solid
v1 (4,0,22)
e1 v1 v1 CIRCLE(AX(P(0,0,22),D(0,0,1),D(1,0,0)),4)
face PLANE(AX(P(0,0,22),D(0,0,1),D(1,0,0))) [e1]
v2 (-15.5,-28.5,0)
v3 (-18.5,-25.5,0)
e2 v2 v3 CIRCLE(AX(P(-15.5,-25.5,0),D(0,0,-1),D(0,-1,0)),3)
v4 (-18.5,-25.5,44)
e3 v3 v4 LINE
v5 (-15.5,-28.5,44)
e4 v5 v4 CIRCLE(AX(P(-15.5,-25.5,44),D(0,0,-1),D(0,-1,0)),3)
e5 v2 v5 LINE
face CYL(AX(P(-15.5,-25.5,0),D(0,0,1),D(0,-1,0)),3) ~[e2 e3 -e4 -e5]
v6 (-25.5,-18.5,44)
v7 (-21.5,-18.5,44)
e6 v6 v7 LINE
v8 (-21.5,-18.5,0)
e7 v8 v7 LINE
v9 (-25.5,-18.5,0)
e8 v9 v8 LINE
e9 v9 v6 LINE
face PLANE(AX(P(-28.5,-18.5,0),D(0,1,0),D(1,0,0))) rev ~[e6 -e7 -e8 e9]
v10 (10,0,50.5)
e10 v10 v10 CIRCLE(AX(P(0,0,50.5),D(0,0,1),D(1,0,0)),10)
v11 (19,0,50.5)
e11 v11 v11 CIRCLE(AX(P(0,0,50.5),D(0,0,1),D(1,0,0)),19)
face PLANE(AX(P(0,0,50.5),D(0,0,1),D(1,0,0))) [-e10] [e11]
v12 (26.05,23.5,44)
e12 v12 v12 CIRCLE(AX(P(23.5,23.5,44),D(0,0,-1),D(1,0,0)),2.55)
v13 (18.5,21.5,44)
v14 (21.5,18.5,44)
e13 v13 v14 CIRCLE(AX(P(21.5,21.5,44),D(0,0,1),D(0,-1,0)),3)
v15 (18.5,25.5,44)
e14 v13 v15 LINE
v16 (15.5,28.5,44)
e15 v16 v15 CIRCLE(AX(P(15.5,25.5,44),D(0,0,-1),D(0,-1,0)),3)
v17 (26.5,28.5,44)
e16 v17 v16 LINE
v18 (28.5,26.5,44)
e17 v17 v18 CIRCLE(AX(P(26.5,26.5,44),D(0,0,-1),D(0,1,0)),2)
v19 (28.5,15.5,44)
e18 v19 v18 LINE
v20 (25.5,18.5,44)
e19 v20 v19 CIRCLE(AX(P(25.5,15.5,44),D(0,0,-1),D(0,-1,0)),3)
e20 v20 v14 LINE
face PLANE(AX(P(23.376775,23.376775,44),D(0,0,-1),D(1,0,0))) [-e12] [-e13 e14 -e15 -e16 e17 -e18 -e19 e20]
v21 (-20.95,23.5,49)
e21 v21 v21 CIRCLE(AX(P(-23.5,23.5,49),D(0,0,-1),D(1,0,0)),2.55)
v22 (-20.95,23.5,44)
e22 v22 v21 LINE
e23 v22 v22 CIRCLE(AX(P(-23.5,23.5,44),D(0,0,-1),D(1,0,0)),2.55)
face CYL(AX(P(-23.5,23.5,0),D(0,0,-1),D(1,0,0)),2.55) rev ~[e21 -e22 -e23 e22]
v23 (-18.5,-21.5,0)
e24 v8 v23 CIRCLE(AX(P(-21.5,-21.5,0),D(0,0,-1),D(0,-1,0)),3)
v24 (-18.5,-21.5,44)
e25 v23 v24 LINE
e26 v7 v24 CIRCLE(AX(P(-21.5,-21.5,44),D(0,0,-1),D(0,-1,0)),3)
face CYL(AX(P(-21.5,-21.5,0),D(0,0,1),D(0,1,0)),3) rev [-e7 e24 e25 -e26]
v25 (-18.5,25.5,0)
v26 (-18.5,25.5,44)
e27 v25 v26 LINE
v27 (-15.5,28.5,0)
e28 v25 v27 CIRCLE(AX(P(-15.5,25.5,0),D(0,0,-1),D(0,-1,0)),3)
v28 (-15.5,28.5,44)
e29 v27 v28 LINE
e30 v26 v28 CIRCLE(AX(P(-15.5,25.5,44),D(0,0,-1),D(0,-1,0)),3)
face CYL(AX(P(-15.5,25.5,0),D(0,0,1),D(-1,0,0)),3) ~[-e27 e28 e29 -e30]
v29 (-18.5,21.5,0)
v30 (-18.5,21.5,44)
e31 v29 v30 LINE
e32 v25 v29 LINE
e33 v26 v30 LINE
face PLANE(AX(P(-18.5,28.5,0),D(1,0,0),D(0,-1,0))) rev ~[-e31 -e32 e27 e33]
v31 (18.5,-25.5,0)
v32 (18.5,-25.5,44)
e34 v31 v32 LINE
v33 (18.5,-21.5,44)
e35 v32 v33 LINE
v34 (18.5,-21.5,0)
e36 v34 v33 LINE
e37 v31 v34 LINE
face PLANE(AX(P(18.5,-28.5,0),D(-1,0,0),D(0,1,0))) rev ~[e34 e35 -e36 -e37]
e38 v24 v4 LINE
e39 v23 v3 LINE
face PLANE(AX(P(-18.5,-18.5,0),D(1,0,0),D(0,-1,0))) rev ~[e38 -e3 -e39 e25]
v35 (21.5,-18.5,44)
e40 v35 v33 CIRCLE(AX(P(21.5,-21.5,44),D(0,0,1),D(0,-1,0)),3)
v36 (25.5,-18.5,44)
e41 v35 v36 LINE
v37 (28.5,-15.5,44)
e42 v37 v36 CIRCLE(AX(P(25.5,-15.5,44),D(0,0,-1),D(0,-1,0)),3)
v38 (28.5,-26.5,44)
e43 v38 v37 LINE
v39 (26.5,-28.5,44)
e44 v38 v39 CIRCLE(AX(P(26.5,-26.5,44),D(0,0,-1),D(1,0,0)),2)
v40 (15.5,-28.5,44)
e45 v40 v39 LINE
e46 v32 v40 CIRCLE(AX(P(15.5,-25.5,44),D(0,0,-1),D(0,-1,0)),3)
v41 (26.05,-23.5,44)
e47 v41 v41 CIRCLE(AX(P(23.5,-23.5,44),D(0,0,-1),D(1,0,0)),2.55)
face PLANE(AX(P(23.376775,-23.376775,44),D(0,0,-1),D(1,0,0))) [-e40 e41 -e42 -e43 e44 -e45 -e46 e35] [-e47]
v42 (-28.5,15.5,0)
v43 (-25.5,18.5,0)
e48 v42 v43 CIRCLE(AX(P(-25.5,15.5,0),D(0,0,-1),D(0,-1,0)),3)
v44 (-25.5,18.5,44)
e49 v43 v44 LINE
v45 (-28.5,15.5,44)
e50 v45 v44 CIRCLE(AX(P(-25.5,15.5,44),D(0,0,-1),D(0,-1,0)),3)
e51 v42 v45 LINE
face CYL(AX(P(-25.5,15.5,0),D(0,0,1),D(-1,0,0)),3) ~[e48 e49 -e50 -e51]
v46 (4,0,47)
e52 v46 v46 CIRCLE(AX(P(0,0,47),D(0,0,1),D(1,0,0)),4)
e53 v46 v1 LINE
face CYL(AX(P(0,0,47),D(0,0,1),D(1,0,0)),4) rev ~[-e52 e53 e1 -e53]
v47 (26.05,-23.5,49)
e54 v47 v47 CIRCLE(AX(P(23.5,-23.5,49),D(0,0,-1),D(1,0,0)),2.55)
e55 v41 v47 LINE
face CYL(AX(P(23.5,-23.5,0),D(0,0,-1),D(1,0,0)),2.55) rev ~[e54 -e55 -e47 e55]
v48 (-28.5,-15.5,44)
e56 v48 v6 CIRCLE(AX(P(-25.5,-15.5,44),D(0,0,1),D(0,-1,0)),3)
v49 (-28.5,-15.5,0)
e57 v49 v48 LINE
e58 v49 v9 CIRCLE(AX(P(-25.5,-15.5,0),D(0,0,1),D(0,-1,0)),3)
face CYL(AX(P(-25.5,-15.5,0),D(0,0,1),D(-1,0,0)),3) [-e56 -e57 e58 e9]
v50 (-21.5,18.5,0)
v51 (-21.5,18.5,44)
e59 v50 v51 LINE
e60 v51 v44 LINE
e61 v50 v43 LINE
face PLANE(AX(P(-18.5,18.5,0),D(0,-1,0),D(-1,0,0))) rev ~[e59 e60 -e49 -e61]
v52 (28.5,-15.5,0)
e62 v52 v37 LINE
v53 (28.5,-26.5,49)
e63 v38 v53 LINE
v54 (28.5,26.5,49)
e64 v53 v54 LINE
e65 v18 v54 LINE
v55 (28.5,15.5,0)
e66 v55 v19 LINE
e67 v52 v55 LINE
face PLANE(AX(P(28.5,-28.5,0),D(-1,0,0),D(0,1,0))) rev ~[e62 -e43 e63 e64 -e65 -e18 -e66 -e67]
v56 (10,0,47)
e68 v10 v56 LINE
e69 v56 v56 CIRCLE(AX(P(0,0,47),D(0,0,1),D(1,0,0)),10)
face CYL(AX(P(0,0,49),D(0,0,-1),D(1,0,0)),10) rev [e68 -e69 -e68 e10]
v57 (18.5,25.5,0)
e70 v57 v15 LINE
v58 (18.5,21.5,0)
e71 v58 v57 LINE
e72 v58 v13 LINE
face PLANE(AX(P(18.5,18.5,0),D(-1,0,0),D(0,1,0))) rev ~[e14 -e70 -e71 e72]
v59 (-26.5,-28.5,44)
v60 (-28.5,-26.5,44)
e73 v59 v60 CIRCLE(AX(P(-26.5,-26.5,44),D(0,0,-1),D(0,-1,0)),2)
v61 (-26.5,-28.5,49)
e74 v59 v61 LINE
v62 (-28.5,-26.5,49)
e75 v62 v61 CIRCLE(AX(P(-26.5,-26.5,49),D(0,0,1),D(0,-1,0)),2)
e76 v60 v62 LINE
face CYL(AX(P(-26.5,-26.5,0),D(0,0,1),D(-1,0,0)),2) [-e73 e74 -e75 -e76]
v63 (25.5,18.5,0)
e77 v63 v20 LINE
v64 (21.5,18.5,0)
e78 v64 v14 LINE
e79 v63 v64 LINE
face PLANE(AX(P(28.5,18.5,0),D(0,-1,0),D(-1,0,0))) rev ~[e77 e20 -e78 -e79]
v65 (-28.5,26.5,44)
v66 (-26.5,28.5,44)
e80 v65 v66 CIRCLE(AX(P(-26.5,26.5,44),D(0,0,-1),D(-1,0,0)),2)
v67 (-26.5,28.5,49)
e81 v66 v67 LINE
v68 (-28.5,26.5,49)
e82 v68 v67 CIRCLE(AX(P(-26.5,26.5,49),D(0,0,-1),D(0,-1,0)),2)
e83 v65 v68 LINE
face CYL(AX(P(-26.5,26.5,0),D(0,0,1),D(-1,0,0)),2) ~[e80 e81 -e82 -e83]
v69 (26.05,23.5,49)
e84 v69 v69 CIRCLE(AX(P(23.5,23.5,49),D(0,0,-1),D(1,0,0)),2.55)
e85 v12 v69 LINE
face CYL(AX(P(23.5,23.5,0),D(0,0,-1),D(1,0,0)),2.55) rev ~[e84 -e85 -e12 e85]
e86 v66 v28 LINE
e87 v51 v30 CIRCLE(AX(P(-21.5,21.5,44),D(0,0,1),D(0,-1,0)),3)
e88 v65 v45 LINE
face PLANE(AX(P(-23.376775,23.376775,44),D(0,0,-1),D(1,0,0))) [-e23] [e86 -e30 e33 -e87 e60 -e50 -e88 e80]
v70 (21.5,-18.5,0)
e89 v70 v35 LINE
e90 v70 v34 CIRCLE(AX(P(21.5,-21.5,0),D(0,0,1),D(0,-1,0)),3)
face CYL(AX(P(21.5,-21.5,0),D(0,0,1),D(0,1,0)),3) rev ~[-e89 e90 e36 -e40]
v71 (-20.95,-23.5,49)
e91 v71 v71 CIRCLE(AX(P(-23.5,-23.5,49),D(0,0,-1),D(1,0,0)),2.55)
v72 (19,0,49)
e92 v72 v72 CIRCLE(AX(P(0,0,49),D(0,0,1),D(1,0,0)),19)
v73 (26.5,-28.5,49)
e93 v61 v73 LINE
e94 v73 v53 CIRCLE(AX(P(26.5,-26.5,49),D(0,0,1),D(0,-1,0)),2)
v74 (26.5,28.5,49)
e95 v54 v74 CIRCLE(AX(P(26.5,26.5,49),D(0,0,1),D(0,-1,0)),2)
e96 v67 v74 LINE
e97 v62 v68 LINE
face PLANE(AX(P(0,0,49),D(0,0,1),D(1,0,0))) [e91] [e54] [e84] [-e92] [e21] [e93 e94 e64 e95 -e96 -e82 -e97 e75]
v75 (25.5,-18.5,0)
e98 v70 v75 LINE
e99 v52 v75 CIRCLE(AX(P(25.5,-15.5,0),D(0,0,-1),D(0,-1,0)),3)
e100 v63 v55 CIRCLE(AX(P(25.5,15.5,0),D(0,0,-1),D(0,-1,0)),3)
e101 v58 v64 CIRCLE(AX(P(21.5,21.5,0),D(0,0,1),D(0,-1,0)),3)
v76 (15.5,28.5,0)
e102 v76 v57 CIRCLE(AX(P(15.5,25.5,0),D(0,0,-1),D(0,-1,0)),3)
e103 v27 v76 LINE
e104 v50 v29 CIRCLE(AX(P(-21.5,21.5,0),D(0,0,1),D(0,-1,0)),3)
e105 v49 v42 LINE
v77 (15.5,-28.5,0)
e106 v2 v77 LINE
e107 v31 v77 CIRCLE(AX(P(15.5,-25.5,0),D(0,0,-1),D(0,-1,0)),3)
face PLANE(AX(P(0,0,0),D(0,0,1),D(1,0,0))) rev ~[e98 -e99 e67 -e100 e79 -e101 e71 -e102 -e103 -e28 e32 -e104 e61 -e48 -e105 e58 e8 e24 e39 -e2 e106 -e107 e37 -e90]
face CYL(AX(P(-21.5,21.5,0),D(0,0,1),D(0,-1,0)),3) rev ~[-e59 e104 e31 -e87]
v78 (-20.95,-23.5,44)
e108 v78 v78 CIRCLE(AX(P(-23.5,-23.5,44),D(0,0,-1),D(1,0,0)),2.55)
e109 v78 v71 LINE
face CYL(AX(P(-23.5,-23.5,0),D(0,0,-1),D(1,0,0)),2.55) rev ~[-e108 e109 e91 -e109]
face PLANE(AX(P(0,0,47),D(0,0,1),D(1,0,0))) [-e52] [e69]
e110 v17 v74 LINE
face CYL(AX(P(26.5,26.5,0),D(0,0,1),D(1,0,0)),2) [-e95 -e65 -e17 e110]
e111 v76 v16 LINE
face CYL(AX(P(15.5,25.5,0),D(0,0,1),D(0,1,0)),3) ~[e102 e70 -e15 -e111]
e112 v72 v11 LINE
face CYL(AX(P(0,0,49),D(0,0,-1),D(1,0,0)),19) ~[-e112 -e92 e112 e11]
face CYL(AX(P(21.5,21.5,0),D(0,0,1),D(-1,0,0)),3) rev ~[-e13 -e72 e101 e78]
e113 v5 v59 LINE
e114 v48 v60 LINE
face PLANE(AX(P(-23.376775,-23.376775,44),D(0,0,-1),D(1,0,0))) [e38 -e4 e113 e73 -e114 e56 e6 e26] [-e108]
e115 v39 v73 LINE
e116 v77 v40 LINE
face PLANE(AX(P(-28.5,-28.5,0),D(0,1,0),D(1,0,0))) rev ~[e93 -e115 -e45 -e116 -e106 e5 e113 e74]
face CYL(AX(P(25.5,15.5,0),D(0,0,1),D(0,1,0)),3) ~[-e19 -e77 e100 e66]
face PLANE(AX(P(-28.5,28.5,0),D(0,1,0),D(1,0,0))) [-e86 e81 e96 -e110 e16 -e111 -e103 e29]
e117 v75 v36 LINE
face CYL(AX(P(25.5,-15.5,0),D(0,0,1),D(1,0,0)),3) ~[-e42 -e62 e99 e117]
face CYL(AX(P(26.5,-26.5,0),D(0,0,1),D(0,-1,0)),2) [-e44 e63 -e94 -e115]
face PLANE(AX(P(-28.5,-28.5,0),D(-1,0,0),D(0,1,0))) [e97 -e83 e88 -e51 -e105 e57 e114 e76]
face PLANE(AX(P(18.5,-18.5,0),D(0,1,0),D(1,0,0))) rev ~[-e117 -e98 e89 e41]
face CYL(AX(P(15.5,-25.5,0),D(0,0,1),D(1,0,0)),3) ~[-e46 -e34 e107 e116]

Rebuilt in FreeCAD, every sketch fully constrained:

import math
import FreeCAD as App
import Part
import Sketcher

V = App.Vector
Q = App.Units.Quantity


def edges_at(feature, points):
    """Names of the edges that pass closest to the given points."""
    edges = feature.Shape.Edges
    near = lambda p: min(range(len(edges)), key=lambda i: edges[i].distToShape(Part.Vertex(*p))[0])
    return sorted({f"Edge{near(p) + 1}" for p in points})

doc = App.newDocument("Part")
body = doc.addObject("PartDesign::Body", "Body")

sketch1 = body.newObject("Sketcher::SketchObject", "Sketch")
sketch1.AttachmentSupport = (doc.getObject("XY_Plane"), [""])
sketch1.MapMode = "FlatFace"
sketch1.addGeometry(Part.LineSegment(V(-28, 28, 0), V(-28, -28, 0)), False)
sketch1.addGeometry(Part.LineSegment(V(-28, -28, 0), V(28, -28, 0)), False)
sketch1.addGeometry(Part.LineSegment(V(28, -28, 0), V(28, 28, 0)), False)
sketch1.addGeometry(Part.LineSegment(V(28, 28, 0), V(-28, 28, 0)), False)
sketch1.addConstraint(Sketcher.Constraint("Coincident", 0, 2, 1, 1))
sketch1.addConstraint(Sketcher.Constraint("Coincident", 1, 2, 2, 1))
sketch1.addConstraint(Sketcher.Constraint("Coincident", 2, 2, 3, 1))
sketch1.addConstraint(Sketcher.Constraint("Coincident", 3, 2, 0, 1))
sketch1.addConstraint(Sketcher.Constraint("Vertical", 0))
sketch1.addConstraint(Sketcher.Constraint("Horizontal", 1))
sketch1.addConstraint(Sketcher.Constraint("Vertical", 2))
sketch1.addConstraint(Sketcher.Constraint("Horizontal", 3))
sketch1.addConstraint(Sketcher.Constraint("Symmetric", 0, 2, 2, 2, -1, 1))
sketch1.addConstraint(Sketcher.Constraint("Equal", 3, 0))
sketch1.addConstraint(Sketcher.Constraint("DistanceX", 1, 1, 1, 2, Q("57 mm")))
pad1 = body.newObject("PartDesign::Pad", "Pad")
pad1.Profile = sketch1
pad1.Length = 49
doc.recompute()

fillet = body.newObject("PartDesign::Fillet", "Fillet")
fillet.Base = (pad1, edges_at(pad1, [
    (-28.5, -28.5, 24.5),
    (28.5, -28.5, 24.5),
    (28.5, 28.5, 24.5),
    (-28.5, 28.5, 24.5),
]))
fillet.Radius = 2

sketch2 = body.newObject("Sketcher::SketchObject", "Sketch001")
sketch2.AttachmentSupport = (doc.getObject("XY_Plane"), [""])
sketch2.MapMode = "FlatFace"
sketch2.addGeometry(Part.Circle(V(-23.5, 23.5, 0), V(0, 0, 1), 2.5), False)
sketch2.addGeometry(Part.Circle(V(-23.5, -23.5, 0), V(0, 0, 1), 2.5), False)
sketch2.addGeometry(Part.Circle(V(23.5, -23.5, 0), V(0, 0, 1), 2.5), False)
sketch2.addGeometry(Part.Circle(V(23.5, 23.5, 0), V(0, 0, 1), 2.5), False)
sketch2.addConstraint(Sketcher.Constraint("Equal", 0, 1))
sketch2.addConstraint(Sketcher.Constraint("Equal", 1, 2))
sketch2.addConstraint(Sketcher.Constraint("Equal", 2, 3))
sketch2.addConstraint(Sketcher.Constraint("Symmetric", 0, 3, 2, 3, -1, 1))
sketch2.addConstraint(Sketcher.Constraint("Symmetric", 1, 3, 3, 3, -1, 1))
sketch2.addConstraint(Sketcher.Constraint("Symmetric", 1, 3, 2, 3, -2))
sketch2.addConstraint(Sketcher.Constraint("Diameter", 0, Q("5.1 mm")))
sketch2.addConstraint(Sketcher.Constraint("DistanceY", 1, 3, 0, 3, Q("47 mm")))
sketch2.addConstraint(Sketcher.Constraint("DistanceX", 1, 3, 2, 3, Q("47 mm")))
pocket1 = body.newObject("PartDesign::Pocket", "Pocket")
pocket1.Profile = sketch2
pocket1.Type = "ThroughAll"
pocket1.Reversed = True

sketch3 = body.newObject("Sketcher::SketchObject", "Sketch002")
sketch3.AttachmentSupport = (doc.getObject("XY_Plane"), [""])
sketch3.MapMode = "FlatFace"
sketch3.addGeometry(Part.LineSegment(V(-26.5, 28.5, 0), V(-18.5, 28.5, 0)), False)
sketch3.addGeometry(Part.LineSegment(V(-18.5, 28.5, 0), V(-18.5, 18.5, 0)), False)
sketch3.addGeometry(Part.LineSegment(V(-18.5, 18.5, 0), V(-28.5, 18.5, 0)), False)
sketch3.addGeometry(Part.LineSegment(V(-28.5, 18.5, 0), V(-28.5, 26.5, 0)), False)
sketch3.addGeometry(Part.ArcOfCircle(Part.Circle(V(-26.5, 26.5, 0), V(0, 0, 1), 2), math.radians(90), math.radians(180)), False)
sketch3.addGeometry(Part.Circle(V(-23.5, 23.5, 0), V(0, 0, 1), 2.5), False)
sketch3.addGeometry(Part.LineSegment(V(28.5, 26.5, 0), V(28.5, 18.5, 0)), False)
sketch3.addGeometry(Part.LineSegment(V(28.5, 18.5, 0), V(18.5, 18.5, 0)), False)
sketch3.addGeometry(Part.LineSegment(V(18.5, 18.5, 0), V(18.5, 28.5, 0)), False)
sketch3.addGeometry(Part.LineSegment(V(18.5, 28.5, 0), V(26.5, 28.5, 0)), False)
sketch3.addGeometry(Part.ArcOfCircle(Part.Circle(V(26.5, 26.5, 0), V(0, 0, 1), 2), math.radians(0), math.radians(90)), False)
sketch3.addGeometry(Part.Circle(V(23.5, 23.5, 0), V(0, 0, 1), 2.5), False)
sketch3.addGeometry(Part.LineSegment(V(18.5, -18.5, 0), V(28.5, -18.5, 0)), False)
sketch3.addGeometry(Part.LineSegment(V(28.5, -18.5, 0), V(28.5, -26.5, 0)), False)
sketch3.addGeometry(Part.ArcOfCircle(Part.Circle(V(26.5, -26.5, 0), V(0, 0, 1), 2), math.radians(-90), math.radians(0)), False)
sketch3.addGeometry(Part.LineSegment(V(26.5, -28.5, 0), V(18.5, -28.5, 0)), False)
sketch3.addGeometry(Part.LineSegment(V(18.5, -28.5, 0), V(18.5, -18.5, 0)), False)
sketch3.addGeometry(Part.Circle(V(23.5, -23.5, 0), V(0, 0, 1), 2.5), False)
sketch3.addGeometry(Part.LineSegment(V(-18.5, -18.5, 0), V(-18.5, -28.5, 0)), False)
sketch3.addGeometry(Part.LineSegment(V(-18.5, -28.5, 0), V(-26.5, -28.5, 0)), False)
sketch3.addGeometry(Part.ArcOfCircle(Part.Circle(V(-26.5, -26.5, 0), V(0, 0, 1), 2), math.radians(180), math.radians(270)), False)
sketch3.addGeometry(Part.LineSegment(V(-28.5, -26.5, 0), V(-28.5, -18.5, 0)), False)
sketch3.addGeometry(Part.LineSegment(V(-28.5, -18.5, 0), V(-18.5, -18.5, 0)), False)
sketch3.addGeometry(Part.Circle(V(-23.5, -23.5, 0), V(0, 0, 1), 2.5), False)
sketch3.addConstraint(Sketcher.Constraint("Coincident", 0, 2, 1, 1))
sketch3.addConstraint(Sketcher.Constraint("Coincident", 1, 2, 2, 1))
sketch3.addConstraint(Sketcher.Constraint("Coincident", 2, 2, 3, 1))
sketch3.addConstraint(Sketcher.Constraint("Tangent", 3, 2, 4, 2))
sketch3.addConstraint(Sketcher.Constraint("Tangent", 4, 1, 0, 1))
sketch3.addConstraint(Sketcher.Constraint("Coincident", 6, 2, 7, 1))
sketch3.addConstraint(Sketcher.Constraint("Coincident", 7, 2, 8, 1))
sketch3.addConstraint(Sketcher.Constraint("Coincident", 8, 2, 9, 1))
sketch3.addConstraint(Sketcher.Constraint("Tangent", 9, 2, 10, 2))
sketch3.addConstraint(Sketcher.Constraint("Tangent", 10, 1, 6, 1))
sketch3.addConstraint(Sketcher.Constraint("Coincident", 12, 2, 13, 1))
sketch3.addConstraint(Sketcher.Constraint("Tangent", 13, 2, 14, 2))
sketch3.addConstraint(Sketcher.Constraint("Tangent", 14, 1, 15, 1))
sketch3.addConstraint(Sketcher.Constraint("Coincident", 15, 2, 16, 1))
sketch3.addConstraint(Sketcher.Constraint("Coincident", 16, 2, 12, 1))
sketch3.addConstraint(Sketcher.Constraint("Coincident", 18, 2, 19, 1))
sketch3.addConstraint(Sketcher.Constraint("Tangent", 19, 2, 20, 2))
sketch3.addConstraint(Sketcher.Constraint("Tangent", 20, 1, 21, 1))
sketch3.addConstraint(Sketcher.Constraint("Coincident", 21, 2, 22, 1))
sketch3.addConstraint(Sketcher.Constraint("Coincident", 22, 2, 18, 1))
sketch3.addConstraint(Sketcher.Constraint("Horizontal", 0))
sketch3.addConstraint(Sketcher.Constraint("Vertical", 1))
sketch3.addConstraint(Sketcher.Constraint("Horizontal", 2))
sketch3.addConstraint(Sketcher.Constraint("Vertical", 3))
sketch3.addConstraint(Sketcher.Constraint("Vertical", 6))
sketch3.addConstraint(Sketcher.Constraint("Horizontal", 7))
sketch3.addConstraint(Sketcher.Constraint("Vertical", 8))
sketch3.addConstraint(Sketcher.Constraint("Horizontal", 9))
sketch3.addConstraint(Sketcher.Constraint("Horizontal", 12))
sketch3.addConstraint(Sketcher.Constraint("Vertical", 13))
sketch3.addConstraint(Sketcher.Constraint("Horizontal", 15))
sketch3.addConstraint(Sketcher.Constraint("Vertical", 16))
sketch3.addConstraint(Sketcher.Constraint("Vertical", 18))
sketch3.addConstraint(Sketcher.Constraint("Horizontal", 19))
sketch3.addConstraint(Sketcher.Constraint("Vertical", 21))
sketch3.addConstraint(Sketcher.Constraint("Horizontal", 22))
sketch3.addConstraint(Sketcher.Constraint("Equal", 4, 10))
sketch3.addConstraint(Sketcher.Constraint("Equal", 5, 11))
sketch3.addConstraint(Sketcher.Constraint("Equal", 10, 14))
sketch3.addConstraint(Sketcher.Constraint("Equal", 11, 17))
sketch3.addConstraint(Sketcher.Constraint("Equal", 14, 20))
sketch3.addConstraint(Sketcher.Constraint("Equal", 17, 23))
sketch3.addConstraint(Sketcher.Constraint("Symmetric", 4, 3, 14, 3, -1, 1))
sketch3.addConstraint(Sketcher.Constraint("Symmetric", 5, 3, 17, 3, -1, 1))
sketch3.addConstraint(Sketcher.Constraint("Symmetric", 10, 3, 20, 3, -1, 1))
sketch3.addConstraint(Sketcher.Constraint("Symmetric", 11, 3, 23, 3, -1, 1))
sketch3.addConstraint(Sketcher.Constraint("Symmetric", 1, 2, 16, 2, -1, 1))
sketch3.addConstraint(Sketcher.Constraint("Symmetric", 7, 2, 22, 2, -1, 1))
sketch3.addConstraint(Sketcher.Constraint("Symmetric", 4, 3, 10, 3, -2))
sketch3.addConstraint(Sketcher.Constraint("Symmetric", 5, 3, 11, 3, -2))
sketch3.addConstraint(Sketcher.Constraint("Symmetric", 1, 2, 7, 2, -2))
sketch3.addConstraint(Sketcher.Constraint("Equal", 22, 1))
sketch3.addConstraint(Sketcher.Constraint("Radius", 4, Q("2 mm")))
sketch3.addConstraint(Sketcher.Constraint("Diameter", 5, Q("5.1 mm")))
sketch3.addConstraint(Sketcher.Constraint("DistanceX", 0, 1, 0, 2, Q("8 mm")))
sketch3.addConstraint(Sketcher.Constraint("DistanceX", 4, 3, 5, 3, Q("3 mm")))
sketch3.addConstraint(Sketcher.Constraint("DistanceY", 5, 3, 4, 3, Q("3 mm")))
sketch3.addConstraint(Sketcher.Constraint("DistanceX", 5, 3, 10, 3, Q("50 mm")))
sketch3.addConstraint(Sketcher.Constraint("DistanceY", 14, 3, 11, 3, Q("50 mm")))
pocket2 = body.newObject("PartDesign::Pocket", "Pocket001")
pocket2.Profile = sketch3
pocket2.Length = 44
pocket2.Reversed = True
doc.recompute()

fillet2 = body.newObject("PartDesign::Fillet", "Fillet001")
fillet2.Base = (pocket2, edges_at(pocket2, [
    (-18.5, -18.5, 22),
    (-18.5, -28.5, 22),
    (-28.5, -18.5, 22),
    (-28.5, 18.5, 22),
    (-18.5, 28.5, 22),
    (18.5, -28.5, 22),
    (28.5, -18.5, 22),
    (-18.5, 18.5, 22),
    (28.5, 18.5, 22),
    (18.5, 28.5, 22),
    (18.5, 18.5, 22),
    (18.5, -18.5, 22),
]))
fillet2.Radius = 3

sketch4 = body.newObject("Sketcher::SketchObject", "Sketch003")
sketch4.AttachmentSupport = (doc.getObject("XY_Plane"), [""])
sketch4.MapMode = "FlatFace"
sketch4.AttachmentOffset = App.Placement(V(0, 0, 49), App.Rotation())
sketch4.addGeometry(Part.Circle(V(0, 0, 0), V(0, 0, 1), 10), False)
sketch4.addConstraint(Sketcher.Constraint("Coincident", 0, 3, -1, 1))
sketch4.addConstraint(Sketcher.Constraint("Diameter", 0, Q("20 mm")))
pocket3 = body.newObject("PartDesign::Pocket", "Pocket002")
pocket3.Profile = sketch4
pocket3.Length = 2

sketch5 = body.newObject("Sketcher::SketchObject", "Sketch004")
sketch5.AttachmentSupport = (doc.getObject("XY_Plane"), [""])
sketch5.MapMode = "FlatFace"
sketch5.AttachmentOffset = App.Placement(V(0, 0, 47), App.Rotation())
sketch5.addGeometry(Part.Circle(V(0, 0, 0), V(0, 0, 1), 4), False)
sketch5.addConstraint(Sketcher.Constraint("Coincident", 0, 3, -1, 1))
sketch5.addConstraint(Sketcher.Constraint("Diameter", 0, Q("8 mm")))
pocket4 = body.newObject("PartDesign::Pocket", "Pocket003")
pocket4.Profile = sketch5
pocket4.Length = 25

sketch6 = body.newObject("Sketcher::SketchObject", "Sketch005")
sketch6.AttachmentSupport = (doc.getObject("XY_Plane"), [""])
sketch6.MapMode = "FlatFace"
sketch6.AttachmentOffset = App.Placement(V(0, 0, 49), App.Rotation())
sketch6.addGeometry(Part.Circle(V(0, 0, 0), V(0, 0, 1), 19), False)
sketch6.addGeometry(Part.Circle(V(0, 0, 0), V(0, 0, 1), 10), False)
sketch6.addConstraint(Sketcher.Constraint("Coincident", 0, 3, -1, 1))
sketch6.addConstraint(Sketcher.Constraint("Coincident", 1, 3, -1, 1))
sketch6.addConstraint(Sketcher.Constraint("Diameter", 0, Q("38 mm")))
sketch6.addConstraint(Sketcher.Constraint("Diameter", 1, Q("20 mm")))
pad2 = body.newObject("PartDesign::Pad", "Pad001")
pad2.Profile = sketch6
pad2.Length = 1.5

doc.recompute()
